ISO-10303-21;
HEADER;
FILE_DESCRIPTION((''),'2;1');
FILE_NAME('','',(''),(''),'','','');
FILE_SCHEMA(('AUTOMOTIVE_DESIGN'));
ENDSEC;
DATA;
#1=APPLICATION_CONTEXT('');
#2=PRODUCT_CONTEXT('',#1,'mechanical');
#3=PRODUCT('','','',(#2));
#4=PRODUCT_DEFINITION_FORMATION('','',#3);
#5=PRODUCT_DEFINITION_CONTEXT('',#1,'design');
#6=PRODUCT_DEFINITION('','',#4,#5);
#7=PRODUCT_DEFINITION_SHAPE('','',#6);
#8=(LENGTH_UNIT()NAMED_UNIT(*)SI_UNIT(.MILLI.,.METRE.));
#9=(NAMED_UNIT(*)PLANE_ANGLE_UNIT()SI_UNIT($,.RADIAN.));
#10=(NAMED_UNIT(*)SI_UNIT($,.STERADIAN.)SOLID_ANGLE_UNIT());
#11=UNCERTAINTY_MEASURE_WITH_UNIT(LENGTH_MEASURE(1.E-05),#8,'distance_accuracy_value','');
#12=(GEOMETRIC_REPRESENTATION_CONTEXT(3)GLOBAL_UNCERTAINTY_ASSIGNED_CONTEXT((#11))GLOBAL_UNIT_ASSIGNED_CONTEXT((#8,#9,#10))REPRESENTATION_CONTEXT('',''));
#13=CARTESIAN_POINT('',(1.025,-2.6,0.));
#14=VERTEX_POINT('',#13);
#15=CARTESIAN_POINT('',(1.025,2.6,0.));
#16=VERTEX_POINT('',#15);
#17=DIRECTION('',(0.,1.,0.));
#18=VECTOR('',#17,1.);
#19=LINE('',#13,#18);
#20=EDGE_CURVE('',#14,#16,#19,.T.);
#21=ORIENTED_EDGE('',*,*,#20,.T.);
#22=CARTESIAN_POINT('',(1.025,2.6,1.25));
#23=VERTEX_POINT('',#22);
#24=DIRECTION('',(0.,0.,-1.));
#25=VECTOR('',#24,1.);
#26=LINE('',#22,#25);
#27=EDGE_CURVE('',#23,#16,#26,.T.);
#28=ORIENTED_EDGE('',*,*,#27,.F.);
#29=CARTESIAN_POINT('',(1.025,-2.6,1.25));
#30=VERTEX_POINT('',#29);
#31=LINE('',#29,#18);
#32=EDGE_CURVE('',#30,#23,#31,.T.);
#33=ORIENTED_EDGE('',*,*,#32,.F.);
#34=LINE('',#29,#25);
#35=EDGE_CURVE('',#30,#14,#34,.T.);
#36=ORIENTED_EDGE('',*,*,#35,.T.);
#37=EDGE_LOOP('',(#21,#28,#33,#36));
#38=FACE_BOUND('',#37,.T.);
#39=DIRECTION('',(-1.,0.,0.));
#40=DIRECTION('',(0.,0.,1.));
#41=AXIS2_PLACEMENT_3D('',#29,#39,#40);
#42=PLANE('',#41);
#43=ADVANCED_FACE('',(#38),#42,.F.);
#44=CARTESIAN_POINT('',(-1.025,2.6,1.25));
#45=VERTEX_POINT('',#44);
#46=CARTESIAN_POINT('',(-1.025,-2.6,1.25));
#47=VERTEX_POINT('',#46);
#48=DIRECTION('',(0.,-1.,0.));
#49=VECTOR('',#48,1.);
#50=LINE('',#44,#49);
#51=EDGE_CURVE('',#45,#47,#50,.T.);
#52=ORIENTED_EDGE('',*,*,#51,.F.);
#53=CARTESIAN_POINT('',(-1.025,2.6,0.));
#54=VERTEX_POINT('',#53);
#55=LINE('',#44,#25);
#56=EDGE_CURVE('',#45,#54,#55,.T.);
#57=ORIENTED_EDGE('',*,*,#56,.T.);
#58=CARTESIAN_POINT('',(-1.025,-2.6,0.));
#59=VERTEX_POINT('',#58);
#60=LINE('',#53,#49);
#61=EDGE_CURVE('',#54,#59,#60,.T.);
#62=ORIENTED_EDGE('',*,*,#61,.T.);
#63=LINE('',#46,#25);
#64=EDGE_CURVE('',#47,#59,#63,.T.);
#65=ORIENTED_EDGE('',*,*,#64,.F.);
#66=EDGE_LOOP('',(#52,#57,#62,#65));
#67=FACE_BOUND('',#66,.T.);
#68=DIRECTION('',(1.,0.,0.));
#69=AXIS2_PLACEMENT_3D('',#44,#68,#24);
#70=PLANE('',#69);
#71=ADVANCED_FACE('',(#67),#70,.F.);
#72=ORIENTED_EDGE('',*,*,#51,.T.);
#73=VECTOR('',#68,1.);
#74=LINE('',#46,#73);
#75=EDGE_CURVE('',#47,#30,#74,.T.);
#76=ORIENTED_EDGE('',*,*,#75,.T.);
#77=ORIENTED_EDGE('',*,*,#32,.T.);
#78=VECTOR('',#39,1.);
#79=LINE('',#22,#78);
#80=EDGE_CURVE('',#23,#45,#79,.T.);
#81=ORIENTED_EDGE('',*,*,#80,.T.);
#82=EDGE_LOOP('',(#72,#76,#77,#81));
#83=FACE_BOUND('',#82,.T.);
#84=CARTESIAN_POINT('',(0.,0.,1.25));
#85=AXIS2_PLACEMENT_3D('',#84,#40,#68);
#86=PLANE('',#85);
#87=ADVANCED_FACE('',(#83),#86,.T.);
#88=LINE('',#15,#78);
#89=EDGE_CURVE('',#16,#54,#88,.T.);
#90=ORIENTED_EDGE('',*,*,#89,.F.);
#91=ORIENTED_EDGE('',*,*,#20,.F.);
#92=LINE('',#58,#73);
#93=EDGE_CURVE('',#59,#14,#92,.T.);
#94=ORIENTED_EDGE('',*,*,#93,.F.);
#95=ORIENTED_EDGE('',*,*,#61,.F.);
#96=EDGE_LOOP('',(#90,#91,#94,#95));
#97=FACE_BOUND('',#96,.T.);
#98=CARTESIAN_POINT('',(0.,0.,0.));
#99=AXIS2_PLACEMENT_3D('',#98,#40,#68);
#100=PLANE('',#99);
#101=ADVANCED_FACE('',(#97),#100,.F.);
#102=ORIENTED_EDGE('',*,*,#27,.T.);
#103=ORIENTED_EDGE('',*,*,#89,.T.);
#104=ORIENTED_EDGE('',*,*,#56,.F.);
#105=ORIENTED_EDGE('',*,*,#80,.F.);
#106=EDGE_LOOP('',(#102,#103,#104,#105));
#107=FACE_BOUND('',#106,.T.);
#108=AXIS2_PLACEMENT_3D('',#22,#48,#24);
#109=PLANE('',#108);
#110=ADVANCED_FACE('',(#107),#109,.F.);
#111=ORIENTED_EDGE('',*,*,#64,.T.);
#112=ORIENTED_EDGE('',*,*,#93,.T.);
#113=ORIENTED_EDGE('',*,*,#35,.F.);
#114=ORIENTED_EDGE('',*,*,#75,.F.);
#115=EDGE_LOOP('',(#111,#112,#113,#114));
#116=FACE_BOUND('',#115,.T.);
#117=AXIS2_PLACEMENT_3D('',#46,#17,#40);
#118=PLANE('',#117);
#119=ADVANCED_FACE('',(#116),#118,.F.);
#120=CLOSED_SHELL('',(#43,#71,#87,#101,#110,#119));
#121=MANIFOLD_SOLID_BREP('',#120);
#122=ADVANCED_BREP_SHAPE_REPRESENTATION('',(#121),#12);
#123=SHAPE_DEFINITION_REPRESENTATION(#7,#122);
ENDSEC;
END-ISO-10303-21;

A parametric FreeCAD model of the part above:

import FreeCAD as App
import Part
import Sketcher

doc = App.newDocument("Part")
params = doc.addObject("Spreadsheet::Sheet", "Params")
for row, (alias, value) in enumerate([
    ("sketch1_height", "5.2 mm"),
    ("sketch1_width", "2.05 mm"),
    ("pad1_length", "1.25 mm"),
], start=1):
    params.set(f"A{row}", alias)
    params.set(f"B{row}", "=" + value)
    params.setAlias(f"B{row}", alias)

body = doc.addObject("PartDesign::Body", "Body")

# Sketch on XY plane
sketch1 = body.newObject("Sketcher::SketchObject", "Sketch")
sketch1.AttachmentSupport = (doc.getObject("XY_Plane"), [""])
sketch1.MapMode = "FlatFace"
sketch1.addGeometry([
    Part.LineSegment(App.Vector(-1.025, 2.6, 0), App.Vector(-1.025, -2.6, 0)),
    Part.LineSegment(App.Vector(-1.025, -2.6, 0), App.Vector(1.025, -2.6, 0)),
    Part.LineSegment(App.Vector(1.025, -2.6, 0), App.Vector(1.025, 2.6, 0)),
    Part.LineSegment(App.Vector(1.025, 2.6, 0), App.Vector(-1.025, 2.6, 0)),
], False)
sketch1.addConstraint([
    Sketcher.Constraint("Coincident", 0, 2, 1, 1),
    Sketcher.Constraint("Coincident", 1, 2, 2, 1),
    Sketcher.Constraint("Coincident", 2, 2, 3, 1),
    Sketcher.Constraint("Coincident", 3, 2, 0, 1),
    Sketcher.Constraint("Vertical", 0),
    Sketcher.Constraint("Horizontal", 1),
    Sketcher.Constraint("Vertical", 2),
    Sketcher.Constraint("Horizontal", 3),
    Sketcher.Constraint("Symmetric", 0, 2, 2, 2, -1, 1),
    Sketcher.Constraint("DistanceY", 0, 2, 0, 1, 5.2),
    Sketcher.Constraint("DistanceX", 1, 1, 1, 2, 2.05),
])
sketch1.setExpression("Constraints[9]", "Params.sketch1_height")
sketch1.setExpression("Constraints[10]", "Params.sketch1_width")
pad1 = body.newObject("PartDesign::Pad", "Pad")
pad1.Profile = sketch1
pad1.setExpression("Length", "Params.pad1_length")

doc.recompute()
